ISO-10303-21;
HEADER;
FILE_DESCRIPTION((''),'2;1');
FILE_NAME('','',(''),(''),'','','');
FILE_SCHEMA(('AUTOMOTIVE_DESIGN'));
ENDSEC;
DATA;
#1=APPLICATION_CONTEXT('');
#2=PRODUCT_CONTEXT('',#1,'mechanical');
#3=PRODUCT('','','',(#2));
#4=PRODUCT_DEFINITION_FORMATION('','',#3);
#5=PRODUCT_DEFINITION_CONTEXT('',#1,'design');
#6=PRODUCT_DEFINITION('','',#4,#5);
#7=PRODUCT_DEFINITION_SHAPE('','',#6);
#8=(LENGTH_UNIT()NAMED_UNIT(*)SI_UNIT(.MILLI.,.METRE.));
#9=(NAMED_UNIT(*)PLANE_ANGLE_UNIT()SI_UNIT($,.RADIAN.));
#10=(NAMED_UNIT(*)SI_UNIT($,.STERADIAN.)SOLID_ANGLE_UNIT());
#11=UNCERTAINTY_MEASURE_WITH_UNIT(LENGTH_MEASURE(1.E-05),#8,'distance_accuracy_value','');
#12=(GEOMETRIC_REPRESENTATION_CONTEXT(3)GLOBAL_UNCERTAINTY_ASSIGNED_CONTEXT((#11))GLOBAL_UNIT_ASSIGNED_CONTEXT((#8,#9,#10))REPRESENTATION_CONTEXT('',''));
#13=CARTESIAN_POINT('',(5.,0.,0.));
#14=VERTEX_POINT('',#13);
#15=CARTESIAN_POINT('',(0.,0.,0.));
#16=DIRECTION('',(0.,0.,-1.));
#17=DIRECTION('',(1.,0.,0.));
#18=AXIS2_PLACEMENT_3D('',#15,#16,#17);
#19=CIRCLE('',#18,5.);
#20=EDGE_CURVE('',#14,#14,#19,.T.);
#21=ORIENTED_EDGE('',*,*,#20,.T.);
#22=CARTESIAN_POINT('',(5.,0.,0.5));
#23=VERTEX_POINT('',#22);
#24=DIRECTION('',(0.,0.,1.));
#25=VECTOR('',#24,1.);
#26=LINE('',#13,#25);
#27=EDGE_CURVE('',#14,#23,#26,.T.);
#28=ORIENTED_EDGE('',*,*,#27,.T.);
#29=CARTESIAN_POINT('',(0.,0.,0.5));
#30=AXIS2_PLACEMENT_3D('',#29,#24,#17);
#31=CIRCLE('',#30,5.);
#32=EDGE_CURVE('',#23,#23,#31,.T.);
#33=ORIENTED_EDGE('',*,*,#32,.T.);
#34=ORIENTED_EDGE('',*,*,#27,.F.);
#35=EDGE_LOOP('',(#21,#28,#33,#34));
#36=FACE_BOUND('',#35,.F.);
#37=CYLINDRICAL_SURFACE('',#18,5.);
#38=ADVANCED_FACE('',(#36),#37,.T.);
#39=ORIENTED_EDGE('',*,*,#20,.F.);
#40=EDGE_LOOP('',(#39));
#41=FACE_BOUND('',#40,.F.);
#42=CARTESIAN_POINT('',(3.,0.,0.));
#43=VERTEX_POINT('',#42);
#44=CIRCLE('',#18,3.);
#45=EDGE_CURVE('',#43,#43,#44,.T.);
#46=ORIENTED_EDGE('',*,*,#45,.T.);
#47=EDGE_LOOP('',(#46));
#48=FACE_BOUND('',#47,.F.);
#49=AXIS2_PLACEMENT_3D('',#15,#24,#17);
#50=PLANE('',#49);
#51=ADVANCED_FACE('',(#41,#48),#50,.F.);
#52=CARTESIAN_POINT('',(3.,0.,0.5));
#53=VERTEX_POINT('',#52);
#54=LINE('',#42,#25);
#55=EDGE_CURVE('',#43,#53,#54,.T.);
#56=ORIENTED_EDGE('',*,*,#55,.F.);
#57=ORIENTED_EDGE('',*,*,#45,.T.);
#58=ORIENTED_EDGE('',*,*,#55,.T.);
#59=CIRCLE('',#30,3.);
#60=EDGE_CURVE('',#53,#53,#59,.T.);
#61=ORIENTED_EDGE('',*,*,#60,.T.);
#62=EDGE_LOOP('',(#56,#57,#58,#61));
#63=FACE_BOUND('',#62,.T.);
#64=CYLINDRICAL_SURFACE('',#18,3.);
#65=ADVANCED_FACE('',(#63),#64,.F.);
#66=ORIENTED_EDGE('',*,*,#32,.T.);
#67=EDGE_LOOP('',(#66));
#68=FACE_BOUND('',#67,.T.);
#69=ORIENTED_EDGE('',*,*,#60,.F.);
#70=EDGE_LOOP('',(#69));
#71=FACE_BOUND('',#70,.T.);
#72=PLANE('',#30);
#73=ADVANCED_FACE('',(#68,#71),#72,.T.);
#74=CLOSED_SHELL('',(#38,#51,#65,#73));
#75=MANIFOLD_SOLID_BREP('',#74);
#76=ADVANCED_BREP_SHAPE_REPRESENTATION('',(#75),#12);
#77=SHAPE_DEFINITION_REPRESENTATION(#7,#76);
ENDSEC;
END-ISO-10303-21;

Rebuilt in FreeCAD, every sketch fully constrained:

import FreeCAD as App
import Part
import Sketcher
Q = App.Units.Quantity

doc = App.newDocument("Part")
body = doc.addObject("PartDesign::Body", "Body")

# Sketch on XY plane
sketch1 = doc.addObject("Sketcher::SketchObject", "Sketch")
body.addObject(sketch1)
sketch1.AttachmentSupport = (doc.XY_Plane, [""])
sketch1.MapMode = "FlatFace"
sketch1.addGeometry([
    Part.Circle(App.Vector(0, 0, 0), App.Vector(0, 0, 1), 5),
    Part.Circle(App.Vector(0, 0, 0), App.Vector(0, 0, 1), 3),
], False)
sketch1.addConstraint([
    Sketcher.Constraint("Coincident", 0, 3, -1, 1),
    Sketcher.Constraint("Coincident", 1, 3, -1, 1),
    Sketcher.Constraint("Diameter", 0, Q("10 mm")),
    Sketcher.Constraint("Diameter", 1, Q("6 mm")),
])
pad1 = doc.addObject("PartDesign::Pad", "Pad")
body.addObject(pad1)
pad1.Profile = sketch1
pad1.Length = 0.5

doc.recompute()
